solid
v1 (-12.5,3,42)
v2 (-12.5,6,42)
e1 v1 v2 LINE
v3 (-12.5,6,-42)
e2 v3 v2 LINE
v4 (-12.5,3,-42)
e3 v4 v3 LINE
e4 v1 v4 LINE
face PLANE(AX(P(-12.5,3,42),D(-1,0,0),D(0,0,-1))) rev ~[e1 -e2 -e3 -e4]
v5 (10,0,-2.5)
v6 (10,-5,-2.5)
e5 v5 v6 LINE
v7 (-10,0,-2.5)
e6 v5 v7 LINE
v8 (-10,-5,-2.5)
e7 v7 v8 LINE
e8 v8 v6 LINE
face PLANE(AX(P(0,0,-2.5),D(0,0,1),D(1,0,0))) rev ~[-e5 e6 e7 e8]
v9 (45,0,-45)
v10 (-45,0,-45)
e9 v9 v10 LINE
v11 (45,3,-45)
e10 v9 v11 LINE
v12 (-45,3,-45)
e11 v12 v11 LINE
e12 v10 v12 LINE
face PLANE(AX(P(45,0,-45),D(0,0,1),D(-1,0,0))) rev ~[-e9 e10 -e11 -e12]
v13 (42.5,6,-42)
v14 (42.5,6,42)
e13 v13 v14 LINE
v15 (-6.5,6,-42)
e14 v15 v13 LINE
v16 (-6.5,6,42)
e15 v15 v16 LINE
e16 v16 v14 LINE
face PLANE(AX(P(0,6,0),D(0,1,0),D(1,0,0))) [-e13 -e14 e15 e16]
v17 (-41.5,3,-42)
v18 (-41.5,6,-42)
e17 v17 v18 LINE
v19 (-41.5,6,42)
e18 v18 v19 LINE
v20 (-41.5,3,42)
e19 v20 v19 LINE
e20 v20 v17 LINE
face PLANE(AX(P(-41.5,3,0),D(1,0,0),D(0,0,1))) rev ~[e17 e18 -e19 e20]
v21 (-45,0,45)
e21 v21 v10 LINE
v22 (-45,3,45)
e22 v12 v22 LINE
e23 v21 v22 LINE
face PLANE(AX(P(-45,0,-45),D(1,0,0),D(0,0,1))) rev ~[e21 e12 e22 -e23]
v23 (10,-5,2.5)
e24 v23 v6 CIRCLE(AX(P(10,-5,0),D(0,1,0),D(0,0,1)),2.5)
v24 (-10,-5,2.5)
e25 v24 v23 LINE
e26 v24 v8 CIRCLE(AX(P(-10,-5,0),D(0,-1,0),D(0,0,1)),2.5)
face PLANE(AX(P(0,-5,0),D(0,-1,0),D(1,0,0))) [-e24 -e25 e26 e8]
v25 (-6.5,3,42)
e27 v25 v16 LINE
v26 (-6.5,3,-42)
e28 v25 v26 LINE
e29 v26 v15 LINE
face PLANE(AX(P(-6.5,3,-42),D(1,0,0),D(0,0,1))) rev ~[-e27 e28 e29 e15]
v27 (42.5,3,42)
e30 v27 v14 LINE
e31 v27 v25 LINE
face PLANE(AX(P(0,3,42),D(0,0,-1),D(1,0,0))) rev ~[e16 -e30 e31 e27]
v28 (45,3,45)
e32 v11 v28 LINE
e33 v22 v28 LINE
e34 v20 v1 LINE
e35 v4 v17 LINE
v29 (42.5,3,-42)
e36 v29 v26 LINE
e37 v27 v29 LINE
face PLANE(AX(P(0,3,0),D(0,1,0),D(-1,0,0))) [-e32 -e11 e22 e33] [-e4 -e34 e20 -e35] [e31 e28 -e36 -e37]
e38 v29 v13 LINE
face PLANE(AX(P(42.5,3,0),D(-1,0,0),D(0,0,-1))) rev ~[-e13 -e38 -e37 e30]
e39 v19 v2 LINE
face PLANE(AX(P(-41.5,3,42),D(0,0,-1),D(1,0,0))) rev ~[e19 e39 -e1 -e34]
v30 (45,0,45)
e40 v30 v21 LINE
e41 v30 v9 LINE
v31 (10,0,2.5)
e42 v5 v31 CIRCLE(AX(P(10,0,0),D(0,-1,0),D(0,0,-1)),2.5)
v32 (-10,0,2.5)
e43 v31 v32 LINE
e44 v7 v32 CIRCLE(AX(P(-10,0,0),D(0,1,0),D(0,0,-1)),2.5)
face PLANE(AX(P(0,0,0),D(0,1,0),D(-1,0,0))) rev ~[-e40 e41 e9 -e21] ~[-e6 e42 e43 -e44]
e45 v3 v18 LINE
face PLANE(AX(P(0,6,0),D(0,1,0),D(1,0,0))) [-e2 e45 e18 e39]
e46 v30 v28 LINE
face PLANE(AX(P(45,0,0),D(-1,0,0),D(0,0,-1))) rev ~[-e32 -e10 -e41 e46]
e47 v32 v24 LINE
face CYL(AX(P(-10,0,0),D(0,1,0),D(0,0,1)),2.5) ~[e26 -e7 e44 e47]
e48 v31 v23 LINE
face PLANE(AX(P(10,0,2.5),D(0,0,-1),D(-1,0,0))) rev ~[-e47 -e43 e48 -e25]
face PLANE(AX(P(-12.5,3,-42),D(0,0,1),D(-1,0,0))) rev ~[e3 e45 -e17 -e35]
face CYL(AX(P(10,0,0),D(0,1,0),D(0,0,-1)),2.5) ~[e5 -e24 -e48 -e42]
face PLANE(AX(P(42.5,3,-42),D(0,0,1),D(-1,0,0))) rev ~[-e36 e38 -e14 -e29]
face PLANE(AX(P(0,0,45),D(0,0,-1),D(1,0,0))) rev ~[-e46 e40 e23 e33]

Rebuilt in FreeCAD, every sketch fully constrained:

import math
import FreeCAD as App
import Part
import Sketcher
Q = App.Units.Quantity

doc = App.newDocument("Part")
body = doc.addObject("PartDesign::Body", "Body")

# Sketch on XZ plane
sketch1 = doc.addObject("Sketcher::SketchObject", "Sketch")
body.addObject(sketch1)
sketch1.AttachmentSupport = (doc.XZ_Plane, [""])
sketch1.MapMode = "FlatFace"
sketch1.addGeometry([
    Part.LineSegment(App.Vector(45, -45, 0), App.Vector(-45, -45, 0)),
    Part.LineSegment(App.Vector(-45, -45, 0), App.Vector(-45, 45, 0)),
    Part.LineSegment(App.Vector(-45, 45, 0), App.Vector(45, 45, 0)),
    Part.LineSegment(App.Vector(45, 45, 0), App.Vector(45, -45, 0)),
], False)
sketch1.addConstraint([
    Sketcher.Constraint("Coincident", 0, 2, 1, 1),
    Sketcher.Constraint("Coincident", 1, 2, 2, 1),
    Sketcher.Constraint("Coincident", 2, 2, 3, 1),
    Sketcher.Constraint("Coincident", 3, 2, 0, 1),
    Sketcher.Constraint("Horizontal", 0),
    Sketcher.Constraint("Vertical", 1),
    Sketcher.Constraint("Horizontal", 2),
    Sketcher.Constraint("Vertical", 3),
    Sketcher.Constraint("Symmetric", 0, 2, 2, 2, -1, 1),
    Sketcher.Constraint("Equal", 2, 1),
    Sketcher.Constraint("DistanceX", 0, 2, 0, 1, Q("90 mm")),
])
pad1 = doc.addObject("PartDesign::Pad", "Pad")
body.addObject(pad1)
pad1.Profile = sketch1
pad1.Length = 3
pad1.Reversed = True

# Sketch on XZ plane
sketch2 = doc.addObject("Sketcher::SketchObject", "Sketch001")
body.addObject(sketch2)
sketch2.AttachmentSupport = (doc.XZ_Plane, [""])
sketch2.MapMode = "FlatFace"
sketch2.AttachmentOffset = App.Placement(App.Vector(0, 0, -3), App.Rotation())
sketch2.addGeometry([
    Part.LineSegment(App.Vector(-12, 42, 0), App.Vector(-12, -42, 0)),
    Part.LineSegment(App.Vector(-12, -42, 0), App.Vector(-42, -42, 0)),
    Part.LineSegment(App.Vector(-42, -42, 0), App.Vector(-42, 42, 0)),
    Part.LineSegment(App.Vector(-42, 42, 0), App.Vector(-12, 42, 0)),
], False)
sketch2.addConstraint([
    Sketcher.Constraint("Coincident", 0, 2, 1, 1),
    Sketcher.Constraint("Coincident", 1, 2, 2, 1),
    Sketcher.Constraint("Coincident", 2, 2, 3, 1),
    Sketcher.Constraint("Coincident", 3, 2, 0, 1),
    Sketcher.Constraint("Vertical", 0),
    Sketcher.Constraint("Horizontal", 1),
    Sketcher.Constraint("Vertical", 2),
    Sketcher.Constraint("Horizontal", 3),
    Sketcher.Constraint("DistanceX", 1, 2, 1, 1, Q("29 mm")),
    Sketcher.Constraint("DistanceY", 0, 2, 0, 1, Q("84 mm")),
    Sketcher.Constraint("DistanceY", 0, 2, -1, 1, Q("42 mm")),
    Sketcher.Constraint("DistanceX", 0, 2, -1, 1, Q("12.5 mm")),
])
pad2 = doc.addObject("PartDesign::Pad", "Pad001")
body.addObject(pad2)
pad2.Profile = sketch2
pad2.Length = 3
pad2.Reversed = True

# Sketch on XZ plane
sketch3 = doc.addObject("Sketcher::SketchObject", "Sketch002")
body.addObject(sketch3)
sketch3.AttachmentSupport = (doc.XZ_Plane, [""])
sketch3.MapMode = "FlatFace"
sketch3.AttachmentOffset = App.Placement(App.Vector(0, 0, -3), App.Rotation())
sketch3.addGeometry([
    Part.LineSegment(App.Vector(42, -42, 0), App.Vector(-6, -42, 0)),
    Part.LineSegment(App.Vector(-6, -42, 0), App.Vector(-6, 42, 0)),
    Part.LineSegment(App.Vector(-6, 42, 0), App.Vector(42, 42, 0)),
    Part.LineSegment(App.Vector(42, 42, 0), App.Vector(42, -42, 0)),
], False)
sketch3.addConstraint([
    Sketcher.Constraint("Coincident", 0, 2, 1, 1),
    Sketcher.Constraint("Coincident", 1, 2, 2, 1),
    Sketcher.Constraint("Coincident", 2, 2, 3, 1),
    Sketcher.Constraint("Coincident", 3, 2, 0, 1),
    Sketcher.Constraint("Horizontal", 0),
    Sketcher.Constraint("Vertical", 1),
    Sketcher.Constraint("Horizontal", 2),
    Sketcher.Constraint("Vertical", 3),
    Sketcher.Constraint("DistanceX", 0, 2, 0, 1, Q("49 mm")),
    Sketcher.Constraint("DistanceY", 1, 1, 1, 2, Q("84 mm")),
    Sketcher.Constraint("DistanceY", 0, 2, -1, 1, Q("42 mm")),
    Sketcher.Constraint("DistanceX", 0, 2, -1, 1, Q("6.5 mm")),
])
pad3 = doc.addObject("PartDesign::Pad", "Pad002")
body.addObject(pad3)
pad3.Profile = sketch3
pad3.Length = 3
pad3.Reversed = True

# Sketch on XZ plane
sketch4 = doc.addObject("Sketcher::SketchObject", "Sketch003")
body.addObject(sketch4)
sketch4.AttachmentSupport = (doc.XZ_Plane, [""])
sketch4.MapMode = "FlatFace"
sketch4.addGeometry([
    Part.LineSegment(App.Vector(10, 2.5, 0), App.Vector(-10, 2.5, 0)),
    Part.ArcOfCircle(Part.Circle(App.Vector(-10, 0, 0), App.Vector(0, 0, 1), 2.5), math.radians(90), math.radians(270)),
    Part.LineSegment(App.Vector(-10, -2.5, 0), App.Vector(10, -2.5, 0)),
    Part.ArcOfCircle(Part.Circle(App.Vector(10, 0, 0), App.Vector(0, 0, 1), 2.5), math.radians(-90), math.radians(90)),
], False)
sketch4.addConstraint([
    Sketcher.Constraint("Tangent", 0, 2, 1, 1),
    Sketcher.Constraint("Tangent", 1, 2, 2, 1),
    Sketcher.Constraint("Tangent", 2, 2, 3, 1),
    Sketcher.Constraint("Tangent", 3, 2, 0, 1),
    Sketcher.Constraint("Horizontal", 0),
    Sketcher.Constraint("Horizontal", 2),
    Sketcher.Constraint("Symmetric", 1, 3, 3, 3, -1, 1),
    Sketcher.Constraint("Radius", 1, Q("2.5 mm")),
    Sketcher.Constraint("DistanceX", 0, 2, 0, 1, Q("20 mm")),
])
pad4 = doc.addObject("PartDesign::Pad", "Pad003")
body.addObject(pad4)
pad4.Profile = sketch4
pad4.Length = 5

doc.recompute()
